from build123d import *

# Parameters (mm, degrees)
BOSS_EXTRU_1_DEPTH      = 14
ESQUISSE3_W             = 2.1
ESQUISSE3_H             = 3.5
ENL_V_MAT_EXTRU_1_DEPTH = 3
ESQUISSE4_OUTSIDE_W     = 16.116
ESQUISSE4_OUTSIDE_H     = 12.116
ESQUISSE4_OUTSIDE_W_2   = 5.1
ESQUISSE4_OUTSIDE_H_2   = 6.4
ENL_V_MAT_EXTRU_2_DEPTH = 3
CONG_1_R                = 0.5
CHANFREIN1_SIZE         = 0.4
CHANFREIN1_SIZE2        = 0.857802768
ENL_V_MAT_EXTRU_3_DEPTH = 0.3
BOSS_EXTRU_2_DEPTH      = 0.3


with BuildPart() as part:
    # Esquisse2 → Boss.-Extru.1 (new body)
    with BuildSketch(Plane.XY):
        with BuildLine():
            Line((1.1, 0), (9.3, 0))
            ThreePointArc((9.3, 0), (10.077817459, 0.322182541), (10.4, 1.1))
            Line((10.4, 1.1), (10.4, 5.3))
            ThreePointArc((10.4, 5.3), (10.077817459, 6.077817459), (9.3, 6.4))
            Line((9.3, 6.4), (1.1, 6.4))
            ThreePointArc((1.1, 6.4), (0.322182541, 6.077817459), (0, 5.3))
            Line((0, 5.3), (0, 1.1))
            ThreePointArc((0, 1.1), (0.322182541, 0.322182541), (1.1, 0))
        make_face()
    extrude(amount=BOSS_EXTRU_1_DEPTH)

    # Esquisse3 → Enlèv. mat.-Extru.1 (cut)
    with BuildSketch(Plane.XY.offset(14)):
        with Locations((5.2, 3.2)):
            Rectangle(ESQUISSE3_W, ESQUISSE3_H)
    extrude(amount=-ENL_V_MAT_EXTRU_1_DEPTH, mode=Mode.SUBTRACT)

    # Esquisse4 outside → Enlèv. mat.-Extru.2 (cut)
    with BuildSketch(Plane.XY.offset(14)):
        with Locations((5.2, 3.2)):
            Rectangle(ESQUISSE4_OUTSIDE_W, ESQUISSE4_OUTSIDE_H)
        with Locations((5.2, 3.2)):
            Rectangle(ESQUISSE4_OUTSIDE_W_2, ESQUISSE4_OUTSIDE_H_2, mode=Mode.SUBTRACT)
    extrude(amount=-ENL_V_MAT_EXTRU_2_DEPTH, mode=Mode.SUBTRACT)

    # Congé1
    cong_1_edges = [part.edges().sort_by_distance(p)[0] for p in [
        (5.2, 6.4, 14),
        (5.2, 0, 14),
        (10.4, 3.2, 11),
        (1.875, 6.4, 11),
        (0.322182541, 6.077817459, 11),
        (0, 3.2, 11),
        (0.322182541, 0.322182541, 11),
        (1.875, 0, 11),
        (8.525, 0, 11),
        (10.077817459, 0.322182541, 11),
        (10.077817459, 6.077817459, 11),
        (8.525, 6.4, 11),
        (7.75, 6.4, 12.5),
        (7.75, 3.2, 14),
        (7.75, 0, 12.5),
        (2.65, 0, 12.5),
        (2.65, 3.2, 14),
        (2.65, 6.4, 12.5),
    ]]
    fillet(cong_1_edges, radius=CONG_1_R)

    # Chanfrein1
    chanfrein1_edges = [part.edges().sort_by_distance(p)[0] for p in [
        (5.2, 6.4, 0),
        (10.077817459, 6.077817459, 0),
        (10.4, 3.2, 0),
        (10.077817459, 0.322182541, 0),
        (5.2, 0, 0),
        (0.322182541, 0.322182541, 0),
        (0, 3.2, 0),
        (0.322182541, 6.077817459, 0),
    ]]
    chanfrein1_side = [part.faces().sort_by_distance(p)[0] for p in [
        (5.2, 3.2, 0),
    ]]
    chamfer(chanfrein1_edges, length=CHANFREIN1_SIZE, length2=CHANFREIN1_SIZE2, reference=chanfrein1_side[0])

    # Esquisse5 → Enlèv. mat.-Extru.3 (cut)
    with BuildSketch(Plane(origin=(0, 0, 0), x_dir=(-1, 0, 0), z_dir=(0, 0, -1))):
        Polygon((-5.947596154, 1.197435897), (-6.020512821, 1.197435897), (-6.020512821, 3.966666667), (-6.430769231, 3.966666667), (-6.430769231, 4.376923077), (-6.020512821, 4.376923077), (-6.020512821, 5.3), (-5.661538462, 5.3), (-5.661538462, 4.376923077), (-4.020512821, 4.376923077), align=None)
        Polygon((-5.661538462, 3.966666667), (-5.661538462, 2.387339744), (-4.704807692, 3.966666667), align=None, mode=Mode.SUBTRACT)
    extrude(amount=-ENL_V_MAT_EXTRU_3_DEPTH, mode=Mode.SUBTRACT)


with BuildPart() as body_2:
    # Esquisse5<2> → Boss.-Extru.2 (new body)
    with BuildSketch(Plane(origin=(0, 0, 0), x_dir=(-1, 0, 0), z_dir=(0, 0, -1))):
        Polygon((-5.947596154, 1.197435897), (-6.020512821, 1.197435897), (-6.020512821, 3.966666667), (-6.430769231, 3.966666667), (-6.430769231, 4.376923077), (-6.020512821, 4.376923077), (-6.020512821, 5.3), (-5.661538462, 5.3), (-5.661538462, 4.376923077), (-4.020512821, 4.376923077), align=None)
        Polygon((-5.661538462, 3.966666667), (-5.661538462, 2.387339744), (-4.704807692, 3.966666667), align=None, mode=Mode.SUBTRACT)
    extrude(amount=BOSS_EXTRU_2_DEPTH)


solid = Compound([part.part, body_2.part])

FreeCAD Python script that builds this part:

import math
import FreeCAD as App
import Part
import Sketcher
Q = App.Units.Quantity


def edges_at(feature, points):
    """Names of the edges that pass closest to the given points."""
    edges = feature.Shape.Edges
    near = lambda p: min(range(len(edges)), key=lambda i: edges[i].distToShape(Part.Vertex(*p))[0])
    return sorted({f"Edge{near(p) + 1}" for p in points})


def add_polygon(sketch, points):
    """Adds a closed chain of lines whose ends are joined by coincident constraints."""
    first, n = sketch.GeometryCount, len(points)
    for a, b in zip(points, points[1:] + points[:1]):
        sketch.addGeometry(Part.LineSegment(App.Vector(*a, 0), App.Vector(*b, 0)), False)
    for i in range(n):
        sketch.addConstraint(Sketcher.Constraint("Coincident", first + i, 2, first + (i + 1) % n, 1))

doc = App.newDocument("Part")
body = doc.addObject("PartDesign::Body", "Body")

# Sketch on XY plane
sketch1 = body.newObject("Sketcher::SketchObject", "Sketch")
sketch1.AttachmentSupport = (doc.getObject("XY_Plane"), [""])
sketch1.MapMode = "FlatFace"
sketch1.addGeometry(Part.LineSegment(App.Vector(1.1, 0, 0), App.Vector(9.3, 0, 0)), False)
sketch1.addGeometry(Part.ArcOfCircle(Part.Circle(App.Vector(9.3, 1.1, 0), App.Vector(0, 0, 1), 1.1), math.radians(-90), math.radians(0)), False)
sketch1.addGeometry(Part.LineSegment(App.Vector(10.4, 1.1, 0), App.Vector(10.4, 5.3, 0)), False)
sketch1.addGeometry(Part.ArcOfCircle(Part.Circle(App.Vector(9.3, 5.3, 0), App.Vector(0, 0, 1), 1.1), math.radians(0), math.radians(90)), False)
sketch1.addGeometry(Part.LineSegment(App.Vector(9.3, 6.4, 0), App.Vector(1.1, 6.4, 0)), False)
sketch1.addGeometry(Part.ArcOfCircle(Part.Circle(App.Vector(1.1, 5.3, 0), App.Vector(0, 0, 1), 1.1), math.radians(90), math.radians(180)), False)
sketch1.addGeometry(Part.LineSegment(App.Vector(0, 5.3, 0), App.Vector(0, 1.1, 0)), False)
sketch1.addGeometry(Part.ArcOfCircle(Part.Circle(App.Vector(1.1, 1.1, 0), App.Vector(0, 0, 1), 1.1), math.radians(-180), math.radians(-90)), False)
sketch1.addConstraint(Sketcher.Constraint("Tangent", 0, 2, 1, 1))
sketch1.addConstraint(Sketcher.Constraint("Tangent", 1, 2, 2, 1))
sketch1.addConstraint(Sketcher.Constraint("Tangent", 2, 2, 3, 1))
sketch1.addConstraint(Sketcher.Constraint("Tangent", 3, 2, 4, 1))
sketch1.addConstraint(Sketcher.Constraint("Tangent", 4, 2, 5, 1))
sketch1.addConstraint(Sketcher.Constraint("Tangent", 5, 2, 6, 1))
sketch1.addConstraint(Sketcher.Constraint("Tangent", 6, 2, 7, 1))
sketch1.addConstraint(Sketcher.Constraint("Tangent", 7, 2, 0, 1))
sketch1.addConstraint(Sketcher.Constraint("Horizontal", 0))
sketch1.addConstraint(Sketcher.Constraint("Vertical", 2))
sketch1.addConstraint(Sketcher.Constraint("Horizontal", 4))
sketch1.addConstraint(Sketcher.Constraint("Vertical", 6))
sketch1.addConstraint(Sketcher.Constraint("Equal", 1, 3))
sketch1.addConstraint(Sketcher.Constraint("Equal", 3, 5))
sketch1.addConstraint(Sketcher.Constraint("Equal", 5, 7))
sketch1.addConstraint(Sketcher.Constraint("PointOnObject", 0, 2, -1))
sketch1.addConstraint(Sketcher.Constraint("PointOnObject", 5, 2, -2))
sketch1.addConstraint(Sketcher.Constraint("Radius", 1, 1.1))
sketch1.addConstraint(Sketcher.Constraint("DistanceX", 0, 1, 0, 2, 8.2))
sketch1.addConstraint(Sketcher.Constraint("DistanceY", 2, 1, 2, 2, 4.2))
pad1 = body.newObject("PartDesign::Pad", "Pad")
pad1.Profile = sketch1
pad1.Length = 14

# Sketch on XY plane
sketch2 = body.newObject("Sketcher::SketchObject", "Sketch001")
sketch2.AttachmentSupport = (doc.getObject("XY_Plane"), [""])
sketch2.MapMode = "FlatFace"
sketch2.AttachmentOffset = App.Placement(App.Vector(0, 0, 14), App.Rotation())
add_polygon(sketch2, [(4.2, 5), (4.2, 1.4), (6.2, 1.4), (6.2, 5)])  # lines 0-3
sketch2.addConstraint(Sketcher.Constraint("Vertical", 0))
sketch2.addConstraint(Sketcher.Constraint("Horizontal", 1))
sketch2.addConstraint(Sketcher.Constraint("Vertical", 2))
sketch2.addConstraint(Sketcher.Constraint("Horizontal", 3))
sketch2.addConstraint(Sketcher.Constraint("DistanceX", 1, 1, 1, 2, 2.1))
sketch2.addConstraint(Sketcher.Constraint("DistanceY", 0, 2, 0, 1, 3.5))
sketch2.addConstraint(Sketcher.Constraint("DistanceX", -1, 1, 0, 2, 4.15))
sketch2.addConstraint(Sketcher.Constraint("DistanceY", -1, 1, 0, 2, 1.45))
pocket1 = body.newObject("PartDesign::Pocket", "Pocket")
pocket1.Profile = sketch2
pocket1.Length = 3

# Sketch on XY plane
sketch3 = body.newObject("Sketcher::SketchObject", "Sketch002")
sketch3.AttachmentSupport = (doc.getObject("XY_Plane"), [""])
sketch3.MapMode = "FlatFace"
sketch3.AttachmentOffset = App.Placement(App.Vector(0, 0, 14), App.Rotation())
add_polygon(sketch3, [(-3, 9), (-3, -3), (13, -3), (13, 9)])  # lines 0-3
add_polygon(sketch3, [(8, 0), (3, 0), (3, 6), (8, 6)])  # lines 4-7
sketch3.addConstraint(Sketcher.Constraint("Vertical", 0))
sketch3.addConstraint(Sketcher.Constraint("Horizontal", 1))
sketch3.addConstraint(Sketcher.Constraint("Vertical", 2))
sketch3.addConstraint(Sketcher.Constraint("Horizontal", 3))
sketch3.addConstraint(Sketcher.Constraint("Horizontal", 4))
sketch3.addConstraint(Sketcher.Constraint("Vertical", 5))
sketch3.addConstraint(Sketcher.Constraint("Horizontal", 6))
sketch3.addConstraint(Sketcher.Constraint("Vertical", 7))
sketch3.addConstraint(Sketcher.Constraint("PointOnObject", 4, 2, -1))
sketch3.addConstraint(Sketcher.Constraint("DistanceX", 4, 2, 4, 1, 5.1))
sketch3.addConstraint(Sketcher.Constraint("DistanceY", 5, 1, 5, 2, 6.4))
sketch3.addConstraint(Sketcher.Constraint("DistanceX", 1, 1, 1, 2, 16.116))
sketch3.addConstraint(Sketcher.Constraint("DistanceY", 0, 2, 0, 1, 12.116))
sketch3.addConstraint(Sketcher.Constraint("DistanceX", -1, 1, 4, 2, 2.65))
sketch3.addConstraint(Sketcher.Constraint("DistanceX", 0, 2, -1, 1, 2.858))
sketch3.addConstraint(Sketcher.Constraint("DistanceY", 0, 2, -1, 1, 2.858))
pocket2 = body.newObject("PartDesign::Pocket", "Pocket001")
pocket2.Profile = sketch3
pocket2.Length = 3
doc.recompute()

fillet = body.newObject("PartDesign::Fillet", "Fillet")
fillet.Base = (pocket2, edges_at(pocket2, [
    (5.2, 6.4, 14),
    (5.2, 0, 14),
    (10.4, 3.2, 11),
    (1.875, 6.4, 11),
    (0.322, 6.078, 11),
    (0, 3.2, 11),
    (0.322, 0.322, 11),
    (1.875, 0, 11),
    (8.525, 0, 11),
    (10.078, 0.322, 11),
    (10.078, 6.078, 11),
    (8.525, 6.4, 11),
    (7.75, 6.4, 12.5),
    (7.75, 3.2, 14),
    (7.75, 0, 12.5),
    (2.65, 0, 12.5),
    (2.65, 3.2, 14),
    (2.65, 6.4, 12.5),
]))
fillet.Radius = 0.5
doc.recompute()

chamfer = body.newObject("PartDesign::Chamfer", "Chamfer")
chamfer.Base = (fillet, edges_at(fillet, [
    (5.2, 6.4, 0),
    (10.078, 6.078, 0),
    (10.4, 3.2, 0),
    (10.078, 0.322, 0),
    (5.2, 0, 0),
    (0.322, 0.322, 0),
    (0, 3.2, 0),
    (0.322, 6.078, 0),
]))
chamfer.ChamferType = "Two distances"
chamfer.Size = 0.4
chamfer.Size2 = 0.857803

# Sketch on XY plane
sketch4 = body.newObject("Sketcher::SketchObject", "Sketch003")
sketch4.AttachmentSupport = (doc.getObject("XY_Plane"), [""])
sketch4.MapMode = "FlatFace"
add_polygon(sketch4, [(6.02, 1.2), (5.95, 1.2), (4.02, 4.38), (5.66, 4.38), (5.66, 5.3), (6.02, 5.3), (6.02, 4.38), (6.43, 4.38), (6.43, 3.97), (6.02, 3.97)])  # lines 0-9
add_polygon(sketch4, [(5.66, 3.97), (4.7, 3.97), (5.66, 2.39)])  # lines 10-12
sketch4.addConstraint(Sketcher.Constraint("Horizontal", 0))
sketch4.addConstraint(Sketcher.Constraint("Horizontal", 2))
sketch4.addConstraint(Sketcher.Constraint("Vertical", 3))
sketch4.addConstraint(Sketcher.Constraint("Horizontal", 4))
sketch4.addConstraint(Sketcher.Constraint("Vertical", 5))
sketch4.addConstraint(Sketcher.Constraint("Horizontal", 6))
sketch4.addConstraint(Sketcher.Constraint("Vertical", 7))
sketch4.addConstraint(Sketcher.Constraint("Horizontal", 8))
sketch4.addConstraint(Sketcher.Constraint("Vertical", 9))
sketch4.addConstraint(Sketcher.Constraint("Horizontal", 10))
sketch4.addConstraint(Sketcher.Constraint("Vertical", 12))
sketch4.addConstraint(Sketcher.Constraint("Horizontal", 2, 2, 5, 2))
sketch4.addConstraint(Sketcher.Constraint("Horizontal", 8, 2, 10, 2))
sketch4.addConstraint(Sketcher.Constraint("Vertical", 5, 2, 8, 2))
sketch4.addConstraint(Sketcher.Constraint("Vertical", 3, 2, 11, 2))
sketch4.addConstraint(Sketcher.Constraint("Equal", 8, 7))
sketch4.addConstraint(Sketcher.Constraint("DistanceX", 1, 2, 4, 2, 2.0))
sketch4.addConstraint(Sketcher.Constraint("DistanceY", -1, 1, 3, 2, 5.3))
sketch4.addConstraint(Sketcher.Constraint("Angle", 1, Q("121.220003 deg")))
sketch4.addConstraint(Sketcher.Constraint("Distance", 1, 3.717901))
sketch4.addConstraint(Sketcher.Constraint("DistanceX", 10, 2, 10, 1, 0.956731))
sketch4.addConstraint(Sketcher.Constraint("DistanceY", 9, 2, 9, 1, 2.769231))
sketch4.addConstraint(Sketcher.Constraint("DistanceX", 2, 1, 2, 2, 1.641026))
sketch4.addConstraint(Sketcher.Constraint("DistanceY", 3, 1, 3, 2, 0.923077))
sketch4.addConstraint(Sketcher.Constraint("DistanceY", 12, 1, 12, 2, 1.579327))
sketch4.addConstraint(Sketcher.Constraint("DistanceX", -1, 1, 2, 2, 5.661538))
pocket3 = body.newObject("PartDesign::Pocket", "Pocket002")
pocket3.Profile = sketch4
pocket3.Length = 0.3
pocket3.Reversed = True
body2 = doc.addObject("PartDesign::Body", "Body001")

# Sketch on XY plane
sketch5 = body2.newObject("Sketcher::SketchObject", "Sketch004")
sketch5.AttachmentSupport = (doc.getObject("XY_Plane001"), [""])
sketch5.MapMode = "FlatFace"
add_polygon(sketch5, [(6.02, 1.2), (5.95, 1.2), (4.02, 4.38), (5.66, 4.38), (5.66, 5.3), (6.02, 5.3), (6.02, 4.38), (6.43, 4.38), (6.43, 3.97), (6.02, 3.97)])  # lines 0-9
add_polygon(sketch5, [(5.66, 3.97), (4.7, 3.97), (5.66, 2.39)])  # lines 10-12
sketch5.addConstraint(Sketcher.Constraint("Horizontal", 0))
sketch5.addConstraint(Sketcher.Constraint("Horizontal", 2))
sketch5.addConstraint(Sketcher.Constraint("Vertical", 3))
sketch5.addConstraint(Sketcher.Constraint("Horizontal", 4))
sketch5.addConstraint(Sketcher.Constraint("Vertical", 5))
sketch5.addConstraint(Sketcher.Constraint("Horizontal", 6))
sketch5.addConstraint(Sketcher.Constraint("Vertical", 7))
sketch5.addConstraint(Sketcher.Constraint("Horizontal", 8))
sketch5.addConstraint(Sketcher.Constraint("Vertical", 9))
sketch5.addConstraint(Sketcher.Constraint("Horizontal", 10))
sketch5.addConstraint(Sketcher.Constraint("Vertical", 12))
sketch5.addConstraint(Sketcher.Constraint("Horizontal", 2, 2, 5, 2))
sketch5.addConstraint(Sketcher.Constraint("Horizontal", 8, 2, 10, 2))
sketch5.addConstraint(Sketcher.Constraint("Vertical", 5, 2, 8, 2))
sketch5.addConstraint(Sketcher.Constraint("Vertical", 3, 2, 11, 2))
sketch5.addConstraint(Sketcher.Constraint("Equal", 8, 7))
sketch5.addConstraint(Sketcher.Constraint("DistanceX", 1, 2, 4, 2, 2.0))
sketch5.addConstraint(Sketcher.Constraint("DistanceY", -1, 1, 3, 2, 5.3))
sketch5.addConstraint(Sketcher.Constraint("Angle", 1, Q("121.220003 deg")))
sketch5.addConstraint(Sketcher.Constraint("Distance", 1, 3.717901))
sketch5.addConstraint(Sketcher.Constraint("DistanceX", 10, 2, 10, 1, 0.956731))
sketch5.addConstraint(Sketcher.Constraint("DistanceY", 9, 2, 9, 1, 2.769231))
sketch5.addConstraint(Sketcher.Constraint("DistanceX", 2, 1, 2, 2, 1.641026))
sketch5.addConstraint(Sketcher.Constraint("DistanceY", 3, 1, 3, 2, 0.923077))
sketch5.addConstraint(Sketcher.Constraint("DistanceY", 12, 1, 12, 2, 1.579327))
sketch5.addConstraint(Sketcher.Constraint("DistanceX", -1, 1, 2, 2, 5.661538))
pad2 = body2.newObject("PartDesign::Pad", "Pad001")
pad2.Profile = sketch5
pad2.Length = 0.3
pad2.Reversed = True

doc.recompute()
